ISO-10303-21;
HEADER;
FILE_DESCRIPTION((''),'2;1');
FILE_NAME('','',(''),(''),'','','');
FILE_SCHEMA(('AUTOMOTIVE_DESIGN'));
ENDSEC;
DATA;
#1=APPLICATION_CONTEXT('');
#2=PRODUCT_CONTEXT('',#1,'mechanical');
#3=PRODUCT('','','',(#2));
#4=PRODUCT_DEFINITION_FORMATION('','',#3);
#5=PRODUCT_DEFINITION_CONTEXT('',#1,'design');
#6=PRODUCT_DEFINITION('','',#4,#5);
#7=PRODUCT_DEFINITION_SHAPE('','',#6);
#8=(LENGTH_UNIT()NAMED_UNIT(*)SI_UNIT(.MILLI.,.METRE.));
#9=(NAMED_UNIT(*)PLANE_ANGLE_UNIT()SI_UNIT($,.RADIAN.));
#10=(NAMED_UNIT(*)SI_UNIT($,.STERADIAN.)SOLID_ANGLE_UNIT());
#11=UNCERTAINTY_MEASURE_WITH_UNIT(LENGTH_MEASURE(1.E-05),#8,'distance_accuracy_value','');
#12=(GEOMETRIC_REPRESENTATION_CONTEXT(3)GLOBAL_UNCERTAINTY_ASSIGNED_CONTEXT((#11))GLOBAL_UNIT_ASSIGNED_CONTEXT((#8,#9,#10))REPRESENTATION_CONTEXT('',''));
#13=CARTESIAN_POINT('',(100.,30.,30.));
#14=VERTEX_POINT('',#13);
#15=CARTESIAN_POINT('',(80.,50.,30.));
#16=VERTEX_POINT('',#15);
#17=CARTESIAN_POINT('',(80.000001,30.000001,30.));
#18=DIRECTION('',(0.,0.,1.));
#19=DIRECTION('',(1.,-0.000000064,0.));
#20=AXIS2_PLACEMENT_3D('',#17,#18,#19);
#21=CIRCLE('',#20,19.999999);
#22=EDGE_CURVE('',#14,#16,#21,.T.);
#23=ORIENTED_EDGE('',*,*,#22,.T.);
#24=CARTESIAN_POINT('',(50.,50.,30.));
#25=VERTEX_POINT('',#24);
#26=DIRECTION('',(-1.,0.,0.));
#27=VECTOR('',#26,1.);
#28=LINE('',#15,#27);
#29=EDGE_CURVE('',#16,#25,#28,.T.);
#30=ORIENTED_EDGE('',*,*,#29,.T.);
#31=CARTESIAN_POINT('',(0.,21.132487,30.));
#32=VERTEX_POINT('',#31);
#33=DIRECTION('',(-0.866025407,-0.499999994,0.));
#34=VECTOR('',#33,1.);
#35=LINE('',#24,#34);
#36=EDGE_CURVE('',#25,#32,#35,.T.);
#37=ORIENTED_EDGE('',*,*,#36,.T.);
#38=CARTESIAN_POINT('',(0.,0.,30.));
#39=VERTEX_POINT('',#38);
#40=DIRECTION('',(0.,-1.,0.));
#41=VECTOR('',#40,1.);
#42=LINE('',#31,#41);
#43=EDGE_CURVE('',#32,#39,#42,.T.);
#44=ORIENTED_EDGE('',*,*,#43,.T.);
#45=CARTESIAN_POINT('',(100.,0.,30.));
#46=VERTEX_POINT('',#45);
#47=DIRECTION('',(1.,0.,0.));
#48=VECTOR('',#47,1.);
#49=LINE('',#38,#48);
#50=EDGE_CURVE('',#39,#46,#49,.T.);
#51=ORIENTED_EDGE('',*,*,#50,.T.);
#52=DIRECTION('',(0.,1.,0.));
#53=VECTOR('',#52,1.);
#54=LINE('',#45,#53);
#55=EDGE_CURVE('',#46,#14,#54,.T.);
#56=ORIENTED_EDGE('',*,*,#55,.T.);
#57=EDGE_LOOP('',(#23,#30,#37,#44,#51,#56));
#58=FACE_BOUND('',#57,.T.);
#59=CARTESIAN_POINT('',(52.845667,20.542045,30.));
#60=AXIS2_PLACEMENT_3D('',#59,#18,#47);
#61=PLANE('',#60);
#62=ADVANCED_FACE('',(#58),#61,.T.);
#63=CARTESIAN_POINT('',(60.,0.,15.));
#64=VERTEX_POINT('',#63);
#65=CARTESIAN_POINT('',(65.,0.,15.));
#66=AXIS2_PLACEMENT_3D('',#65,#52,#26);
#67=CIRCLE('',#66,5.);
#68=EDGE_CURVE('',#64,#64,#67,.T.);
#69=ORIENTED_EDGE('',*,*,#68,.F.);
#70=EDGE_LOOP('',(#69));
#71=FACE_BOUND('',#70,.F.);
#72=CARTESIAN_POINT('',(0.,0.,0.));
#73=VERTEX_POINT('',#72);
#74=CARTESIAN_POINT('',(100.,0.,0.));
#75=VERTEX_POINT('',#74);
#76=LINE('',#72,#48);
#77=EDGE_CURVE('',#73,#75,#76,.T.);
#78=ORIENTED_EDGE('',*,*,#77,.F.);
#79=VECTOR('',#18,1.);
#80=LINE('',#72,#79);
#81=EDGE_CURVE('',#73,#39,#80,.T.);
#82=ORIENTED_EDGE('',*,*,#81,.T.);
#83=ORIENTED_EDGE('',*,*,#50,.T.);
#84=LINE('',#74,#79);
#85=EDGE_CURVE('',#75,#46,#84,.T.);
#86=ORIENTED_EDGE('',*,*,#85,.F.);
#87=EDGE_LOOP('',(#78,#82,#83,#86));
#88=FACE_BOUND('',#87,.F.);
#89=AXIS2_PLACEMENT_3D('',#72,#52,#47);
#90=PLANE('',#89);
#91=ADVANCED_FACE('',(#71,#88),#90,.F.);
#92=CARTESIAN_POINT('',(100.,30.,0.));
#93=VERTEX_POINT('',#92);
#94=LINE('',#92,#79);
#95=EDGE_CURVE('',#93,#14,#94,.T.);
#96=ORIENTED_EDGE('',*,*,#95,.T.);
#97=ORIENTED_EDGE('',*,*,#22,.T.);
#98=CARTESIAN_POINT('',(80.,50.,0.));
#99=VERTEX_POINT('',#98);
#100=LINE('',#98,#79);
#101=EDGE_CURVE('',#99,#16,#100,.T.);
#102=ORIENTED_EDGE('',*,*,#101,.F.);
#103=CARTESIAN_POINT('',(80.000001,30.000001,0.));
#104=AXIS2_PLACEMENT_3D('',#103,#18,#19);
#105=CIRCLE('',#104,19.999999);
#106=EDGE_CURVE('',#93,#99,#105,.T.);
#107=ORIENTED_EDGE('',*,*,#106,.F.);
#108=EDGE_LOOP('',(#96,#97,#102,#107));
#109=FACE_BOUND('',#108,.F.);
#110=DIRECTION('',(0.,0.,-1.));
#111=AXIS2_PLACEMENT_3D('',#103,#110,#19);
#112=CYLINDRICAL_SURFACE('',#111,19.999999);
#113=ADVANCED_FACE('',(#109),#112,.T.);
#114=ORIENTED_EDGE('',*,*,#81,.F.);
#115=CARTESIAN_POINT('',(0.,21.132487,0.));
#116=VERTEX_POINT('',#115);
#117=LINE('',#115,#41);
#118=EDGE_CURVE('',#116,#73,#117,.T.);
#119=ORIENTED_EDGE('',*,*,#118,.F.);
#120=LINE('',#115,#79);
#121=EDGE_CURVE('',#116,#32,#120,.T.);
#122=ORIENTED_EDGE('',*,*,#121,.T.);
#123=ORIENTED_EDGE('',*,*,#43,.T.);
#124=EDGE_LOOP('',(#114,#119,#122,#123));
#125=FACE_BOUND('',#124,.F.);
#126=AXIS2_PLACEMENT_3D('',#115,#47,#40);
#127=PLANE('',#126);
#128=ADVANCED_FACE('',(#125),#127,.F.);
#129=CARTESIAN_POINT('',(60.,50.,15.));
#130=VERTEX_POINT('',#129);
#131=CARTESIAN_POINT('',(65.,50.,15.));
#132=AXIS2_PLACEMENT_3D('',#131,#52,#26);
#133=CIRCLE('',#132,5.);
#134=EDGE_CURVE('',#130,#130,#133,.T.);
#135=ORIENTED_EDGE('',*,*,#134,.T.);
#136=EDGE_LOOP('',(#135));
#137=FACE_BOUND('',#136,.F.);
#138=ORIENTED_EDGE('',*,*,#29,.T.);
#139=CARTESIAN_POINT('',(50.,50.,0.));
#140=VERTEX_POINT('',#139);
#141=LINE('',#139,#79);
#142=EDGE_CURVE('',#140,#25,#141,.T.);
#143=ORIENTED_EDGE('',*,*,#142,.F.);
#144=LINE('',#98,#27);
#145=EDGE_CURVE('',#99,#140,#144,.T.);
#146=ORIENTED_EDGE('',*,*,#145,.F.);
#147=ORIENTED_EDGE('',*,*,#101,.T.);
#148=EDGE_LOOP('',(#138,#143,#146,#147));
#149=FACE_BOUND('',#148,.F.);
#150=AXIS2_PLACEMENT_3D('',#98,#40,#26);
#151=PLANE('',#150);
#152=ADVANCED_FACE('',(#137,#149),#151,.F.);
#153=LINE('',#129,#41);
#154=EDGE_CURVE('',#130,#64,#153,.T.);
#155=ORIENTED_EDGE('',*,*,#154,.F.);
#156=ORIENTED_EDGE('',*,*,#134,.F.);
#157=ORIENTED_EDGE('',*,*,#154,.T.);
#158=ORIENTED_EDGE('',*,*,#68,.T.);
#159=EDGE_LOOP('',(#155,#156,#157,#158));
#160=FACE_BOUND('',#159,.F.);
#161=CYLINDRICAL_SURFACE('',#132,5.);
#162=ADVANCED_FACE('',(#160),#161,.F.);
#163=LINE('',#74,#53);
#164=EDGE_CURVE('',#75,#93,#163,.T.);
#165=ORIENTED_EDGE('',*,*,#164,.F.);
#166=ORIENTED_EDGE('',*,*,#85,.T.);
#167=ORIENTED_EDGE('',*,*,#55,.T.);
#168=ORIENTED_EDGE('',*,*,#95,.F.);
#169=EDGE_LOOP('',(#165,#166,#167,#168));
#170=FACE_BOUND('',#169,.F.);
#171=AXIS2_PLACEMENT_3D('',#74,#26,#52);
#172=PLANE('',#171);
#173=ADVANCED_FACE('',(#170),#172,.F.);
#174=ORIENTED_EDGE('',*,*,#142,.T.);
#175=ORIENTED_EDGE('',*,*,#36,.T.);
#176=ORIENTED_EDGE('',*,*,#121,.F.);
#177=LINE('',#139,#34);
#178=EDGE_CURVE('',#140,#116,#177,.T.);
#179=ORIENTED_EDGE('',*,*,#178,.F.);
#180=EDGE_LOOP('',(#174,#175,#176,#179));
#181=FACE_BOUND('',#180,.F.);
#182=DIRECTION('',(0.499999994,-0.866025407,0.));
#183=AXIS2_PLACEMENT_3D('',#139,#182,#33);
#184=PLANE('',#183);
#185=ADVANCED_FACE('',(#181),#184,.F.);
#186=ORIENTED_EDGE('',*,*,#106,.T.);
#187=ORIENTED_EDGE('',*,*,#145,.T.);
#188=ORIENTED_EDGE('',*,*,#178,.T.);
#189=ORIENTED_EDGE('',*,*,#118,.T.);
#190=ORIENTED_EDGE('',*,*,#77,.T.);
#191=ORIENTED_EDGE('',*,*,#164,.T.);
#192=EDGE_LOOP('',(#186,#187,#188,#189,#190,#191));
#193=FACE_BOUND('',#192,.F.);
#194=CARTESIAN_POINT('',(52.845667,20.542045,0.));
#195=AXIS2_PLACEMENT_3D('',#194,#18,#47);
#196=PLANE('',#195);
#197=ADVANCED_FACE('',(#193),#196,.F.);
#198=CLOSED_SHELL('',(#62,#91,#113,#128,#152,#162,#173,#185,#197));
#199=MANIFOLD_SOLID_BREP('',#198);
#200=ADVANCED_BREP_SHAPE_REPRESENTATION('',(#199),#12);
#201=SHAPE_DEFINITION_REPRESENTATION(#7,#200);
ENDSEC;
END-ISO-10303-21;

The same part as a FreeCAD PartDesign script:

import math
import FreeCAD as App
import Part
import Sketcher

V = App.Vector
Q = App.Units.Quantity

doc = App.newDocument("Part")
body = doc.addObject("PartDesign::Body", "Body")

# Sketch on XY plane
sketch1 = doc.addObject("Sketcher::SketchObject", "Sketch")
body.addObject(sketch1)
sketch1.AttachmentSupport = (doc.XY_Plane, [""])
sketch1.MapMode = "FlatFace"
sketch1.addGeometry(Part.LineSegment(V(0, 21.132487, 0), V(0, 0, 0)), False)
sketch1.addGeometry(Part.LineSegment(V(0, 0, 0), V(100, 0, 0)), False)
sketch1.addGeometry(Part.LineSegment(V(100, 0, 0), V(100, 30, 0)), False)
sketch1.addGeometry(Part.ArcOfCircle(Part.Circle(V(80.000001, 30.000001, 0), V(0, 0, 1), 19.999999), math.radians(-0.000004), math.radians(90.000004)), False)
sketch1.addGeometry(Part.LineSegment(V(80, 50, 0), V(50, 50, 0)), False)
sketch1.addGeometry(Part.LineSegment(V(50, 50, 0), V(0, 21.132487, 0)), False)
sketch1.addConstraint(Sketcher.Constraint("Coincident", 0, 2, 1, 1))
sketch1.addConstraint(Sketcher.Constraint("Coincident", 1, 2, 2, 1))
sketch1.addConstraint(Sketcher.Constraint("Tangent", 2, 2, 3, 1))
sketch1.addConstraint(Sketcher.Constraint("Tangent", 3, 2, 4, 1))
sketch1.addConstraint(Sketcher.Constraint("Coincident", 4, 2, 5, 1))
sketch1.addConstraint(Sketcher.Constraint("Coincident", 5, 2, 0, 1))
sketch1.addConstraint(Sketcher.Constraint("Vertical", 0))
sketch1.addConstraint(Sketcher.Constraint("Horizontal", 1))
sketch1.addConstraint(Sketcher.Constraint("Vertical", 2))
sketch1.addConstraint(Sketcher.Constraint("Horizontal", 4))
sketch1.addConstraint(Sketcher.Constraint("Coincident", 0, 2, -1, 1))
sketch1.addConstraint(Sketcher.Constraint("Equal", 4, 2))
sketch1.addConstraint(Sketcher.Constraint("Radius", 3, Q("19.999999 mm")))
sketch1.addConstraint(Sketcher.Constraint("DistanceX", 1, 1, 1, 2, Q("100 mm")))
sketch1.addConstraint(Sketcher.Constraint("DistanceX", 4, 2, 4, 1, Q("30 mm")))
sketch1.addConstraint(Sketcher.Constraint("Angle", 5, Q("-150 deg")))
pad1 = doc.addObject("PartDesign::Pad", "Pad")
body.addObject(pad1)
pad1.Profile = sketch1
pad1.Length = 30

# Sketch on XZ plane
sketch2 = doc.addObject("Sketcher::SketchObject", "Sketch001")
body.addObject(sketch2)
sketch2.AttachmentSupport = (doc.XZ_Plane, [""])
sketch2.MapMode = "FlatFace"
sketch2.AttachmentOffset = App.Placement(V(0, 0, -50), App.Rotation())
sketch2.addGeometry(Part.Circle(V(65, 15, 0), V(0, 0, 1), 5), False)
sketch2.addConstraint(Sketcher.Constraint("Diameter", 0, Q("10 mm")))
sketch2.addConstraint(Sketcher.Constraint("DistanceX", -1, 1, 0, 3, Q("65 mm")))
sketch2.addConstraint(Sketcher.Constraint("DistanceY", -1, 1, 0, 3, Q("15 mm")))
pocket1 = doc.addObject("PartDesign::Pocket", "Pocket")
body.addObject(pocket1)
pocket1.Profile = sketch2
pocket1.Length = 50
pocket1.Reversed = True

doc.recompute()
